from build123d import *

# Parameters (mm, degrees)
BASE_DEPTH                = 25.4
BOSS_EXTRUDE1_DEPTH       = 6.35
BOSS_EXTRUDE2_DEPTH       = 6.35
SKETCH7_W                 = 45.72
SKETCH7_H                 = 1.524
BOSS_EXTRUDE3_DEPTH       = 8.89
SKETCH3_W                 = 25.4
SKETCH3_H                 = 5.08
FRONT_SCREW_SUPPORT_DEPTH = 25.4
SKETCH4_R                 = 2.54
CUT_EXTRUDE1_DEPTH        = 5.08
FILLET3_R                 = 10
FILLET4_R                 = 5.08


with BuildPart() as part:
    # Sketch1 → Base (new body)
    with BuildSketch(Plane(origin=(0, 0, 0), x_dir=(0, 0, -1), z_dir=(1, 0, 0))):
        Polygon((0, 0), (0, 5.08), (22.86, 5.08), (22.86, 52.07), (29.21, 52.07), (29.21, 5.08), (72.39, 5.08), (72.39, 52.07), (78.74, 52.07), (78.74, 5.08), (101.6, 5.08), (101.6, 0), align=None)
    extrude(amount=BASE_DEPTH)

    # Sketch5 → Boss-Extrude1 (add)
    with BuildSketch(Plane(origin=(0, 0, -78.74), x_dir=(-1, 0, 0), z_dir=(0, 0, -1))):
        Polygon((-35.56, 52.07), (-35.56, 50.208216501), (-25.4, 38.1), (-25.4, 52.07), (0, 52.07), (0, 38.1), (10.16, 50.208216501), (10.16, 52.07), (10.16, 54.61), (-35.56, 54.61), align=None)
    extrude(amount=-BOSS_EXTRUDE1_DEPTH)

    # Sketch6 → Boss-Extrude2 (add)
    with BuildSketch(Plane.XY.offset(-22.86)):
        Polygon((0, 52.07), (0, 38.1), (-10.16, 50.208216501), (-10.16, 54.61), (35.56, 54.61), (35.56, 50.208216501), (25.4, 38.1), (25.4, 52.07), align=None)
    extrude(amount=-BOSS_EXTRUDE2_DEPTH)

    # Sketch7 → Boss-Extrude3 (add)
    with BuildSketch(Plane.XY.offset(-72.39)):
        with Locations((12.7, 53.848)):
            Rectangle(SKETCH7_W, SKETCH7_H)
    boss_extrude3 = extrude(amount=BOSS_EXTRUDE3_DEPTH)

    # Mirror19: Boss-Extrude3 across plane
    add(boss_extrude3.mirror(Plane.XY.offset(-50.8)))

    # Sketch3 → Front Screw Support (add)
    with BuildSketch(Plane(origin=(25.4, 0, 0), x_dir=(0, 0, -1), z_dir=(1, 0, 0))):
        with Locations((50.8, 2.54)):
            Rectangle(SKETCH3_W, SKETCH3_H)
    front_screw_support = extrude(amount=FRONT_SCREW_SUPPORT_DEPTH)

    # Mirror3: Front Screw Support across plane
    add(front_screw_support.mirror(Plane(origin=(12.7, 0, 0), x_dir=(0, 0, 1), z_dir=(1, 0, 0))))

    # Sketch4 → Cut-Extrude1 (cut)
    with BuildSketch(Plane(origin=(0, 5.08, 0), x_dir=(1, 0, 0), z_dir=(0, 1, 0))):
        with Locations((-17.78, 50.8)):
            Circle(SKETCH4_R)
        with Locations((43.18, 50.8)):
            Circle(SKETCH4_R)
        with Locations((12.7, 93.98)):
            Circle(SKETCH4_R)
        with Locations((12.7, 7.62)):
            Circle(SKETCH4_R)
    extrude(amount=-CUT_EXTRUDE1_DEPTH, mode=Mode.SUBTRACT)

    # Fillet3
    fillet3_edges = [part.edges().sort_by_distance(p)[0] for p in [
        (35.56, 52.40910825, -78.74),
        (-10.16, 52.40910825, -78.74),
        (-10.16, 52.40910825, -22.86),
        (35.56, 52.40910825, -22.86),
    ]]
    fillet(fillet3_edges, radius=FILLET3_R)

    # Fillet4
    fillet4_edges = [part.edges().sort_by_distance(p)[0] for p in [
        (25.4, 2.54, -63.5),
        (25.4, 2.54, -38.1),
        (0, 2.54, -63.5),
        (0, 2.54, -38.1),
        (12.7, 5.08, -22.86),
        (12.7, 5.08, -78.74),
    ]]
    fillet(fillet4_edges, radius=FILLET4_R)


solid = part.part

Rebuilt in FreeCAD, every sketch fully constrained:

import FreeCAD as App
import Part
import Sketcher
Q = App.Units.Quantity


def edges_at(feature, points):
    """Names of the edges that pass closest to the given points."""
    edges = feature.Shape.Edges
    near = lambda p: min(range(len(edges)), key=lambda i: edges[i].distToShape(Part.Vertex(*p))[0])
    return sorted({f"Edge{near(p) + 1}" for p in points})


def add_polygon(sketch, points):
    """Adds a closed chain of lines whose ends are joined by coincident constraints."""
    first, n = sketch.GeometryCount, len(points)
    for a, b in zip(points, points[1:] + points[:1]):
        sketch.addGeometry(Part.LineSegment(App.Vector(*a, 0), App.Vector(*b, 0)), False)
    for i in range(n):
        sketch.addConstraint(Sketcher.Constraint("Coincident", first + i, 2, first + (i + 1) % n, 1))

doc = App.newDocument("Part")
params = doc.addObject("Spreadsheet::Sheet", "Params")
for row, (alias, value) in enumerate([
    ("sketch1_height", "4 in"),
    ("sketch1_width", "0.2 in"),
    ("sketch1_height2", "0.9 in"),
    ("sketch1_height3", "1.7 in"),
    ("sketch1_width2", "1.85 in"),
    ("pad1_length", "1 in"),
    ("sketch2_width", "1 in"),
    ("sketch2_width2", "1.8 in"),
    ("sketch2_height", "0.55 in"),
    ("pad2_length", "0.25 in"),
    ("sketch3_width", "1 in"),
    ("sketch3_width2", "1.8 in"),
    ("sketch3_height", "0.55 in"),
    ("pad3_length", "0.25 in"),
    ("sketch4_width", "1.8 in"),
    ("sketch4_height", "0.06 in"),
    ("pad4_length", "0.35 in"),
    ("sketch5_height", "1 in"),
    ("sketch5_width", "0.2 in"),
    ("pad5_length", "1 in"),
    ("sketch6_diameter", "0.2 in"),
    ("pocket1_length", "0.2 in"),
    ("fillet_radius", "10 mm"),
    ("fillet2_radius", "0.2 in"),
], start=1):
    params.set(f"A{row}", alias)
    params.set(f"B{row}", "=" + value)
    params.setAlias(f"B{row}", alias)

body = doc.addObject("PartDesign::Body", "Body")

sketch1 = doc.addObject("Sketcher::SketchObject", "Sketch")
body.addObject(sketch1)
sketch1.AttachmentSupport = (doc.YZ_Plane, [""])
sketch1.MapMode = "FlatFace"
add_polygon(sketch1, [(5, 0), (0, 0), (0, -102), (5, -102), (5, -79), (52, -79), (52, -72), (5, -72), (5, -29), (52, -29), (52, -23), (5, -23)])
sketch1.addConstraint([
    Sketcher.Constraint("Horizontal", 0),
    Sketcher.Constraint("Vertical", 1),
    Sketcher.Constraint("Horizontal", 2),
    Sketcher.Constraint("Vertical", 3),
    Sketcher.Constraint("Horizontal", 4),
    Sketcher.Constraint("Vertical", 5),
    Sketcher.Constraint("Horizontal", 6),
    Sketcher.Constraint("Vertical", 7),
    Sketcher.Constraint("Horizontal", 8),
    Sketcher.Constraint("Vertical", 9),
    Sketcher.Constraint("Horizontal", 10),
    Sketcher.Constraint("Vertical", 11),
    Sketcher.Constraint("Coincident", 0, 2, -1, 1),
    Sketcher.Constraint("Vertical", 3, 2, 6, 2),
    Sketcher.Constraint("Vertical", 5, 2, 8, 2),
    Sketcher.Constraint("Vertical", 7, 2, 10, 2),
    Sketcher.Constraint("Equal", 5, 9),
    Sketcher.Constraint("Equal", 3, 11),
    Sketcher.Constraint("DistanceY", 1, 2, 1, 1, Q("4 in")),
    Sketcher.Constraint("DistanceX", 0, 2, 0, 1, Q("0.2 in")),
    Sketcher.Constraint("DistanceY", 3, 1, 3, 2, Q("0.9 in")),
    Sketcher.Constraint("DistanceY", 7, 1, 7, 2, Q("1.7 in")),
    Sketcher.Constraint("DistanceX", 4, 1, 4, 2, Q("1.85 in")),
])
sketch1.setExpression("Constraints[30]", "Params.sketch1_height")
sketch1.setExpression("Constraints[31]", "Params.sketch1_width")
sketch1.setExpression("Constraints[32]", "Params.sketch1_height2")
sketch1.setExpression("Constraints[33]", "Params.sketch1_height3")
sketch1.setExpression("Constraints[34]", "Params.sketch1_width2")
pad1 = doc.addObject("PartDesign::Pad", "Pad")
body.addObject(pad1)
pad1.Profile = sketch1
pad1.setExpression("Length", "Params.pad1_length")

sketch2 = doc.addObject("Sketcher::SketchObject", "Sketch001")
body.addObject(sketch2)
sketch2.AttachmentSupport = (doc.XY_Plane, [""])
sketch2.MapMode = "FlatFace"
sketch2.AttachmentOffset = App.Placement(App.Vector(0, 0, -3.1 * 25.4), App.Rotation())
add_polygon(sketch2, [(35.6, 50.2), (25.4, 38.1), (25.4, 52.1), (0, 52.1), (0, 38.1), (-10.2, 50.2), (-10.2, 54.6), (35.6, 54.6)])
sketch2.addConstraint([
    Sketcher.Constraint("Vertical", 1),
    Sketcher.Constraint("Horizontal", 2),
    Sketcher.Constraint("Vertical", 3),
    Sketcher.Constraint("Vertical", 5),
    Sketcher.Constraint("Horizontal", 6),
    Sketcher.Constraint("Vertical", 7),
    Sketcher.Constraint("PointOnObject", 2, 2, -2),
    Sketcher.Constraint("Horizontal", 0, 2, 3, 2),
    Sketcher.Constraint("Horizontal", 4, 2, 7, 2),
    Sketcher.Constraint("Equal", 0, 4),
    Sketcher.Constraint("DistanceX", 2, 2, 2, 1, Q("1 in")),
    Sketcher.Constraint("DistanceX", 6, 1, 6, 2, Q("1.8 in")),
    Sketcher.Constraint("Angle", 0, Q("-130 deg")),
    Sketcher.Constraint("DistanceY", 1, 1, 1, 2, Q("0.55 in")),
    Sketcher.Constraint("DistanceY", -1, 1, 0, 2, Q("1.5 in")),
    Sketcher.Constraint("DistanceY", 2, 2, 5, 2, Q("0.1 in")),
])
sketch2.setExpression("Constraints[18]", "Params.sketch2_width")
sketch2.setExpression("Constraints[19]", "Params.sketch2_width2")
sketch2.setExpression("Constraints[21]", "Params.sketch2_height")
pad2 = doc.addObject("PartDesign::Pad", "Pad001")
body.addObject(pad2)
pad2.Profile = sketch2
pad2.setExpression("Length", "Params.pad2_length")

sketch3 = doc.addObject("Sketcher::SketchObject", "Sketch002")
body.addObject(sketch3)
sketch3.AttachmentSupport = (doc.XY_Plane, [""])
sketch3.MapMode = "FlatFace"
sketch3.AttachmentOffset = App.Placement(App.Vector(0, 0, -0.9 * 25.4), App.Rotation())
add_polygon(sketch3, [(0, 38.1), (0, 52.1), (25.4, 52.1), (25.4, 38.1), (35.6, 50.2), (35.6, 54.6), (-10.2, 54.6), (-10.2, 50.2)])
sketch3.addConstraint([
    Sketcher.Constraint("Vertical", 0),
    Sketcher.Constraint("Horizontal", 1),
    Sketcher.Constraint("Vertical", 2),
    Sketcher.Constraint("Vertical", 4),
    Sketcher.Constraint("Horizontal", 5),
    Sketcher.Constraint("Vertical", 6),
    Sketcher.Constraint("PointOnObject", 0, 2, -2),
    Sketcher.Constraint("Horizontal", 3, 2, 6, 2),
    Sketcher.Constraint("Horizontal", 2, 2, 7, 2),
    Sketcher.Constraint("Equal", 3, 7),
    Sketcher.Constraint("DistanceX", 1, 1, 1, 2, Q("1 in")),
    Sketcher.Constraint("DistanceX", 5, 2, 5, 1, Q("1.8 in")),
    Sketcher.Constraint("Angle", 3, Q("50 deg")),
    Sketcher.Constraint("DistanceY", 0, 1, 0, 2, Q("0.55 in")),
    Sketcher.Constraint("DistanceY", -1, 1, 2, 2, Q("1.5 in")),
    Sketcher.Constraint("DistanceY", 1, 2, 4, 2, Q("0.1 in")),
])
sketch3.setExpression("Constraints[18]", "Params.sketch3_width")
sketch3.setExpression("Constraints[19]", "Params.sketch3_width2")
sketch3.setExpression("Constraints[21]", "Params.sketch3_height")
pad3 = doc.addObject("PartDesign::Pad", "Pad002")
body.addObject(pad3)
pad3.Profile = sketch3
pad3.setExpression("Length", "Params.pad3_length")
pad3.Reversed = True

sketch4 = doc.addObject("Sketcher::SketchObject", "Sketch003")
body.addObject(sketch4)
sketch4.AttachmentSupport = (doc.XY_Plane, [""])
sketch4.MapMode = "FlatFace"
sketch4.AttachmentOffset = App.Placement(App.Vector(0, 0, -2.85 * 25.4), App.Rotation())
add_polygon(sketch4, [(-10.2, 54.6), (-10.2, 53.1), (35.6, 53.1), (35.6, 54.6)])
sketch4.addConstraint([
    Sketcher.Constraint("Vertical", 0),
    Sketcher.Constraint("Horizontal", 1),
    Sketcher.Constraint("Vertical", 2),
    Sketcher.Constraint("Horizontal", 3),
    Sketcher.Constraint("DistanceX", 1, 1, 1, 2, Q("1.8 in")),
    Sketcher.Constraint("DistanceY", 0, 2, 0, 1, Q("0.06 in")),
    Sketcher.Constraint("DistanceX", 0, 2, -1, 1, Q("0.4 in")),
    Sketcher.Constraint("DistanceY", -1, 1, 0, 2, Q("2.09 in")),
])
sketch4.setExpression("Constraints[8]", "Params.sketch4_width")
sketch4.setExpression("Constraints[9]", "Params.sketch4_height")
pad4 = doc.addObject("PartDesign::Pad", "Pad003")
body.addObject(pad4)
pad4.Profile = sketch4
pad4.setExpression("Length", "Params.pad4_length")
doc.recompute()

datumplane = doc.addObject("PartDesign::Plane", "DatumPlane")
body.addObject(datumplane)
datumplane.AttachmentSupport = (doc.XY_Plane, [""])
datumplane.MapMode = "FlatFace"
datumplane.AttachmentOffset = App.Placement(App.Vector(0, 0, -2 * 25.4), App.Rotation())
mirrored = doc.addObject("PartDesign::Mirrored", "Mirrored")
body.addObject(mirrored)
mirrored.Originals = [pad4]
mirrored.MirrorPlane = (datumplane, [""])
body.Tip = mirrored

sketch5 = doc.addObject("Sketcher::SketchObject", "Sketch004")
body.addObject(sketch5)
sketch5.AttachmentSupport = (doc.YZ_Plane, [""])
sketch5.MapMode = "FlatFace"
sketch5.AttachmentOffset = App.Placement(App.Vector(0, 0, 1 * 25.4), App.Rotation())
add_polygon(sketch5, [(5, -38), (0, -38), (0, -64), (5, -64)])
sketch5.addConstraint([
    Sketcher.Constraint("Horizontal", 0),
    Sketcher.Constraint("Vertical", 1),
    Sketcher.Constraint("Horizontal", 2),
    Sketcher.Constraint("Vertical", 3),
    Sketcher.Constraint("PointOnObject", 0, 2, -2),
    Sketcher.Constraint("DistanceY", 1, 2, 1, 1, Q("1 in")),
    Sketcher.Constraint("DistanceX", 0, 2, 0, 1, Q("0.2 in")),
    Sketcher.Constraint("DistanceY", 0, 2, -1, 1, Q("1.5 in")),
])
sketch5.setExpression("Constraints[9]", "Params.sketch5_height")
sketch5.setExpression("Constraints[10]", "Params.sketch5_width")
pad5 = doc.addObject("PartDesign::Pad", "Pad004")
body.addObject(pad5)
pad5.Profile = sketch5
pad5.setExpression("Length", "Params.pad5_length")
doc.recompute()

datumplane2 = doc.addObject("PartDesign::Plane", "DatumPlane001")
body.addObject(datumplane2)
datumplane2.AttachmentSupport = (doc.YZ_Plane, [""])
datumplane2.MapMode = "FlatFace"
datumplane2.AttachmentOffset = App.Placement(App.Vector(0, 0, 0.5 * 25.4), App.Rotation())
mirrored2 = doc.addObject("PartDesign::Mirrored", "Mirrored001")
body.addObject(mirrored2)
mirrored2.Originals = [pad5]
mirrored2.MirrorPlane = (datumplane2, [""])
body.Tip = mirrored2

sketch6 = doc.addObject("Sketcher::SketchObject", "Sketch005")
body.addObject(sketch6)
sketch6.AttachmentSupport = (doc.XZ_Plane, [""])
sketch6.MapMode = "FlatFace"
sketch6.AttachmentOffset = App.Placement(App.Vector(0, 0, -0.2 * 25.4), App.Rotation())
sketch6.addGeometry([
    Part.Circle(App.Vector(-17.8, -50.8, 0), App.Vector(0, 0, 1), 2.5),
    Part.Circle(App.Vector(43.2, -50.8, 0), App.Vector(0, 0, 1), 2.5),
    Part.Circle(App.Vector(12.7, -94, 0), App.Vector(0, 0, 1), 2.5),
    Part.Circle(App.Vector(12.7, -7.6, 0), App.Vector(0, 0, 1), 2.5),
], False)
sketch6.addConstraint([
    Sketcher.Constraint("Equal", 0, 1),
    Sketcher.Constraint("Equal", 1, 2),
    Sketcher.Constraint("Equal", 2, 3),
    Sketcher.Constraint("Horizontal", 0, 3, 1, 3),
    Sketcher.Constraint("Vertical", 2, 3, 3, 3),
    Sketcher.Constraint("Diameter", 0, Q("0.2 in")),
    Sketcher.Constraint("DistanceY", 0, 3, -1, 1, Q("2 in")),
    Sketcher.Constraint("DistanceX", 0, 3, -1, 1, Q("0.7 in")),
    Sketcher.Constraint("DistanceX", -1, 1, 1, 3, Q("1.7 in")),
    Sketcher.Constraint("DistanceX", -1, 1, 2, 3, Q("0.5 in")),
    Sketcher.Constraint("DistanceY", 2, 3, -1, 1, Q("3.7 in")),
    Sketcher.Constraint("DistanceY", 3, 3, -1, 1, Q("0.3 in")),
])
sketch6.setExpression("Constraints[5]", "Params.sketch6_diameter")
pocket1 = doc.addObject("PartDesign::Pocket", "Pocket")
body.addObject(pocket1)
pocket1.Profile = sketch6
pocket1.setExpression("Length", "Params.pocket1_length")
pocket1.Reversed = True
doc.recompute()

fillet = doc.addObject("PartDesign::Fillet", "Fillet")
body.addObject(fillet)
fillet.Base = (pocket1, edges_at(pocket1, [
    (35.56, 52.409, -78.74),
    (-10.16, 52.409, -78.74),
    (-10.16, 52.409, -22.86),
    (35.56, 52.409, -22.86),
]))
fillet.setExpression("Radius", "Params.fillet_radius")
doc.recompute()

fillet2 = doc.addObject("PartDesign::Fillet", "Fillet001")
body.addObject(fillet2)
fillet2.Base = (fillet, edges_at(fillet, [
    (25.4, 2.54, -63.5),
    (25.4, 2.54, -38.1),
    (0, 2.54, -63.5),
    (0, 2.54, -38.1),
    (12.7, 5.08, -22.86),
    (12.7, 5.08, -78.74),
]))
fillet2.setExpression("Radius", "Params.fillet2_radius")

doc.recompute()
